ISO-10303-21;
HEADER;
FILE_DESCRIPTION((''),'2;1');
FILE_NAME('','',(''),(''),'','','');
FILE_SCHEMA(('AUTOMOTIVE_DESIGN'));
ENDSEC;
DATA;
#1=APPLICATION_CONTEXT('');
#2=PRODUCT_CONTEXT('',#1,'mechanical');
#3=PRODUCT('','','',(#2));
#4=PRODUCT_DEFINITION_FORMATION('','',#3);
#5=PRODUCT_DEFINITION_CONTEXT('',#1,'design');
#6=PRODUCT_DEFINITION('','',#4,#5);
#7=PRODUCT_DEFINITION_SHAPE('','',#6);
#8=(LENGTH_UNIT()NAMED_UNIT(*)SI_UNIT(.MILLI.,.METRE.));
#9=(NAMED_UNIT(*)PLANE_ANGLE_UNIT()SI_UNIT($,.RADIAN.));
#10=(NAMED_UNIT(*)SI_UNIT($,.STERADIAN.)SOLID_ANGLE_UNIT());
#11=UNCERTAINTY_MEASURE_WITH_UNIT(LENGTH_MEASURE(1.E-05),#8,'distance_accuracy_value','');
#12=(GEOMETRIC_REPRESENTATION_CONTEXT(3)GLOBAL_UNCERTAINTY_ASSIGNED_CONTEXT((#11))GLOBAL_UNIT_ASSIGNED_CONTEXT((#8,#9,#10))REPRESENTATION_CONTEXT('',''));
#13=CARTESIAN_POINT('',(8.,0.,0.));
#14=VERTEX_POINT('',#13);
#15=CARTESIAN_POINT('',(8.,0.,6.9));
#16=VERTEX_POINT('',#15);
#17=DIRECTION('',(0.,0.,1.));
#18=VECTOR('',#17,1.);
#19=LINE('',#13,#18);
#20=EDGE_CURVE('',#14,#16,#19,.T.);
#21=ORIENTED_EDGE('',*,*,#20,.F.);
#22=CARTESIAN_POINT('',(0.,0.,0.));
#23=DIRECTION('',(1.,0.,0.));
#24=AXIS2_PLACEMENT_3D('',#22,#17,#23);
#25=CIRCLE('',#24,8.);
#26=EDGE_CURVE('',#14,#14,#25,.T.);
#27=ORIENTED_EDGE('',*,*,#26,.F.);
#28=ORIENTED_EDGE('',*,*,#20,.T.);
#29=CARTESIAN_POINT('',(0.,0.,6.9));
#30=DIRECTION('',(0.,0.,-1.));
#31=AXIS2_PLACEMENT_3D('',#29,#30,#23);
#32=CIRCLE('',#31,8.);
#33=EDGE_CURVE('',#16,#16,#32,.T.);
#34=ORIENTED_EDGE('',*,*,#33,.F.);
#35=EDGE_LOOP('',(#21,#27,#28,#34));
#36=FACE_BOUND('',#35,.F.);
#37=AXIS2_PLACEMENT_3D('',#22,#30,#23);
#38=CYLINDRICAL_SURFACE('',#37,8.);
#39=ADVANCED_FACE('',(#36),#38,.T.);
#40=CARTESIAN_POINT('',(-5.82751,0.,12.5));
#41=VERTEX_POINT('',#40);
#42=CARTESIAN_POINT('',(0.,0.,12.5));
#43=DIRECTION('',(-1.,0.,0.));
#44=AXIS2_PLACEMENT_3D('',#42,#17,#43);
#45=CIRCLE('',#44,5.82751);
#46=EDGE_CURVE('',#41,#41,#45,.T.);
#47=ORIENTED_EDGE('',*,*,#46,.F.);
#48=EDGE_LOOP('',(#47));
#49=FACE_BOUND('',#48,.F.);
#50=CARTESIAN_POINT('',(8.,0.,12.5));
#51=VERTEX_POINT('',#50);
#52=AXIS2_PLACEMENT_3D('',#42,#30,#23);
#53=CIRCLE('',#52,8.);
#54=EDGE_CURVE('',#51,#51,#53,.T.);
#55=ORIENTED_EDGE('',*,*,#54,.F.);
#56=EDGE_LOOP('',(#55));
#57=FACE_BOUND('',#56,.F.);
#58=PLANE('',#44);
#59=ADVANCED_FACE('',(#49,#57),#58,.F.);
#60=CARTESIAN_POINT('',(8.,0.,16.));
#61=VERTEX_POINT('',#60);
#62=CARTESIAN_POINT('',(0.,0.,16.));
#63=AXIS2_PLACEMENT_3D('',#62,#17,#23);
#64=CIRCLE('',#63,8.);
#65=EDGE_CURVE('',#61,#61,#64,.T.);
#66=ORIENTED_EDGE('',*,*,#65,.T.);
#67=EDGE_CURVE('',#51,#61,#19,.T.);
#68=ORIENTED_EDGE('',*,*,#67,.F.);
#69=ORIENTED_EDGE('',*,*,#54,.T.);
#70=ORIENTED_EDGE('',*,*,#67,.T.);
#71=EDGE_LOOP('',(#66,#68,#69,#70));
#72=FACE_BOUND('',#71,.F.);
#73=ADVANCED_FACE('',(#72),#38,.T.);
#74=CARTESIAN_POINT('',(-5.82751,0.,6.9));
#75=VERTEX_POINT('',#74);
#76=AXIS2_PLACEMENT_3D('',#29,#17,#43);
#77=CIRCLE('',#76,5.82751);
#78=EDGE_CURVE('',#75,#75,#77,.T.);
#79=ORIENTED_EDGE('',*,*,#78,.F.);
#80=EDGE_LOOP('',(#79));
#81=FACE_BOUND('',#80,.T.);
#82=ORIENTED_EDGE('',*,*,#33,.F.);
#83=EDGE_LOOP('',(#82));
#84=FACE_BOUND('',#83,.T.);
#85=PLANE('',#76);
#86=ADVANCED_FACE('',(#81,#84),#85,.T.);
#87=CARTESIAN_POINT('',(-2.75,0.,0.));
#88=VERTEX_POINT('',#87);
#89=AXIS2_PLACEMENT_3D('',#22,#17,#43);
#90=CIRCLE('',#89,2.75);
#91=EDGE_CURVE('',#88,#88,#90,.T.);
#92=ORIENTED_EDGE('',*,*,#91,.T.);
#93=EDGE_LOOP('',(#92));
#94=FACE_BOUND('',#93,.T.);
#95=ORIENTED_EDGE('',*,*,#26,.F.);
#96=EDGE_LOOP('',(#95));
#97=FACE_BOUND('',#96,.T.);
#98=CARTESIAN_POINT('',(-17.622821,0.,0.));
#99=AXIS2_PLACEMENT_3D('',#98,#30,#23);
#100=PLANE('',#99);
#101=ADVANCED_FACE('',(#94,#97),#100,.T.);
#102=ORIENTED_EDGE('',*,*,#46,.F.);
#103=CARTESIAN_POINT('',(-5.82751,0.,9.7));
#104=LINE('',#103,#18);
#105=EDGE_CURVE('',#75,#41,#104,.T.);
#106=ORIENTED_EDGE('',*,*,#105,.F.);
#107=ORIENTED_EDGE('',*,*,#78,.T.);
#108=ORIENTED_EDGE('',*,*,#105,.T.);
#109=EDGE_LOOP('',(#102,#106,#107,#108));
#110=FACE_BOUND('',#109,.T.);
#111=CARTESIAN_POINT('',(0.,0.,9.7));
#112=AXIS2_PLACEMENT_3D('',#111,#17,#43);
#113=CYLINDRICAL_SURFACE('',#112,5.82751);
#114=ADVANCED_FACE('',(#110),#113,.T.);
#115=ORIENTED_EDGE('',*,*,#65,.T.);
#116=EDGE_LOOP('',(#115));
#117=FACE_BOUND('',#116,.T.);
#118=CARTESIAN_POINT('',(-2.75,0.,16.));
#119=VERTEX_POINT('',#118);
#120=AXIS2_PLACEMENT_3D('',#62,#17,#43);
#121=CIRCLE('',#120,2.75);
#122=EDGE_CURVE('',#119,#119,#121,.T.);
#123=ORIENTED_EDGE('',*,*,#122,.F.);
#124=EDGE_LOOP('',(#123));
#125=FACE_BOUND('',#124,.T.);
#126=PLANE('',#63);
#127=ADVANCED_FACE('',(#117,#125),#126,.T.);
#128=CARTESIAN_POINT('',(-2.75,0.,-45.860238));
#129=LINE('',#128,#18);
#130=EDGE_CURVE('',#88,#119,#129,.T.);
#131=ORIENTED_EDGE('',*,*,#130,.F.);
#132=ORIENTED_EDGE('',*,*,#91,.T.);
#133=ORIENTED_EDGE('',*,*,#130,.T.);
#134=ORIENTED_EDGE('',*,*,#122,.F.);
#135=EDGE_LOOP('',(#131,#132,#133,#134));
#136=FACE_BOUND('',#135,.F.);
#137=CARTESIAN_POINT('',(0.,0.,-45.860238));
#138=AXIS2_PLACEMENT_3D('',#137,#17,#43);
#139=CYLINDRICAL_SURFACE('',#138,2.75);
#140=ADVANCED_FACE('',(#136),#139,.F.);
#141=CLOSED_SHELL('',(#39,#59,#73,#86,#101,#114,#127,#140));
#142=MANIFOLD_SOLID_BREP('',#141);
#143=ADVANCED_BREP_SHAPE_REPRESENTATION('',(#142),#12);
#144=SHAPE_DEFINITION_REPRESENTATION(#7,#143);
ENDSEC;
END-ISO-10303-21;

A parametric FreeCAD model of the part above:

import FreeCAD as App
import Part
import Sketcher

V = App.Vector


def edges_at(feature, points):
    """Names of the edges that pass closest to the given points."""
    edges = feature.Shape.Edges
    near = lambda p: min(range(len(edges)), key=lambda i: edges[i].distToShape(Part.Vertex(*p))[0])
    return sorted({f"Edge{near(p) + 1}" for p in points})

doc = App.newDocument("Part")
body = doc.addObject("PartDesign::Body", "Body")

# Sketch on XY plane
sketch1 = doc.addObject("Sketcher::SketchObject", "Sketch")
body.addObject(sketch1)
sketch1.AttachmentSupport = (doc.XY_Plane, [""])
sketch1.MapMode = "FlatFace"
sketch1.addGeometry([
    Part.LineSegment(V(-15, 12, 0), V(-15, -12, 0)),
    Part.LineSegment(V(-15, -12, 0), V(15, -12, 0)),
    Part.LineSegment(V(15, -12, 0), V(15, 12, 0)),
    Part.LineSegment(V(15, 12, 0), V(-15, 12, 0)),
], False)
sketch1.addConstraint([
    Sketcher.Constraint("Coincident", 0, 2, 1, 1),
    Sketcher.Constraint("Coincident", 1, 2, 2, 1),
    Sketcher.Constraint("Coincident", 2, 2, 3, 1),
    Sketcher.Constraint("Coincident", 3, 2, 0, 1),
    Sketcher.Constraint("Vertical", 0),
    Sketcher.Constraint("Horizontal", 1),
    Sketcher.Constraint("Vertical", 2),
    Sketcher.Constraint("Horizontal", 3),
    Sketcher.Constraint("Symmetric", 0, 2, 2, 2, -1, 1),
    Sketcher.Constraint("DistanceX", 1, 1, 1, 2, 30.0),
    Sketcher.Constraint("DistanceY", 0, 2, 0, 1, 24.0),
])
pad1 = doc.addObject("PartDesign::Pad", "Pad")
body.addObject(pad1)
pad1.Profile = sketch1
pad1.Length = 3
pad1.Reversed = True

# Sketch on XY plane
sketch2 = doc.addObject("Sketcher::SketchObject", "Sketch001")
body.addObject(sketch2)
sketch2.AttachmentSupport = (doc.XY_Plane, [""])
sketch2.MapMode = "FlatFace"
sketch2.addGeometry([
    Part.Circle(V(-9, 6.7, 0), V(0, 0, 1), 1.6),
    Part.Circle(V(9, 6.7, 0), V(0, 0, 1), 1.6),
], False)
sketch2.addConstraint([
    Sketcher.Constraint("Equal", 0, 1),
    Sketcher.Constraint("Symmetric", 0, 3, 1, 3, -2),
    Sketcher.Constraint("Diameter", 0, 3.3),
    Sketcher.Constraint("DistanceX", 0, 3, -1, 1, 9.0),
    Sketcher.Constraint("DistanceY", -1, 1, 0, 3, 6.7),
])
doc.recompute()
hole = doc.addObject("PartDesign::Hole", "Hole")
body.addObject(hole)
hole.Profile = sketch2
hole.ThreadType = "None"
hole.Diameter = 3.3
hole.DepthType = "ThroughAll"

# Sketch on XY plane
sketch3 = doc.addObject("Sketcher::SketchObject", "Sketch002")
body.addObject(sketch3)
sketch3.AttachmentSupport = (doc.XY_Plane, [""])
sketch3.MapMode = "FlatFace"
sketch3.addGeometry(Part.Circle(V(0, 0, 0), V(0, 0, 1), 8), False)
sketch3.addConstraint([
    Sketcher.Constraint("Coincident", 0, 3, -1, 1),
    Sketcher.Constraint("Diameter", 0, 16.0),
])
pad2 = doc.addObject("PartDesign::Pad", "Pad001")
body.addObject(pad2)
pad2.Profile = sketch3
pad2.Length = 16

# Sketch on XZ plane
sketch4 = doc.addObject("Sketcher::SketchObject", "Sketch003")
body.addObject(sketch4)
sketch4.AttachmentSupport = (doc.XZ_Plane, [""])
sketch4.MapMode = "FlatFace"
sketch4.addGeometry([
    Part.LineSegment(V(-8, 12.5, 0), V(-8, 6.9, 0)),
    Part.LineSegment(V(-8, 6.9, 0), V(-5.8, 6.9, 0)),
    Part.LineSegment(V(-5.8, 6.9, 0), V(-5.8, 12.5, 0)),
    Part.LineSegment(V(-5.8, 12.5, 0), V(-8, 12.5, 0)),
], False)
sketch4.addConstraint([
    Sketcher.Constraint("Coincident", 0, 2, 1, 1),
    Sketcher.Constraint("Coincident", 1, 2, 2, 1),
    Sketcher.Constraint("Coincident", 2, 2, 3, 1),
    Sketcher.Constraint("Coincident", 3, 2, 0, 1),
    Sketcher.Constraint("Vertical", 0),
    Sketcher.Constraint("Horizontal", 1),
    Sketcher.Constraint("Vertical", 2),
    Sketcher.Constraint("Horizontal", 3),
    Sketcher.Constraint("DistanceX", 1, 1, 1, 2, 2.2),
    Sketcher.Constraint("DistanceY", 0, 2, 0, 1, 5.6),
    Sketcher.Constraint("DistanceY", -1, 1, 0, 2, 6.9),
    Sketcher.Constraint("DistanceX", 0, 2, -1, 1, 8.02751),
])
groove = doc.addObject("PartDesign::Groove", "Groove")
body.addObject(groove)
groove.Profile = sketch4
groove.ReferenceAxis = (sketch4, ["V_Axis"])
groove.Angle = 360

# Sketch on XY plane
sketch5 = doc.addObject("Sketcher::SketchObject", "Sketch004")
body.addObject(sketch5)
sketch5.AttachmentSupport = (doc.XY_Plane, [""])
sketch5.MapMode = "FlatFace"
sketch5.AttachmentOffset = App.Placement(V(0, 0, -3), App.Rotation())
sketch5.addGeometry(Part.Circle(V(0, 0, 0), V(0, 0, 1), 2.8), False)
sketch5.addConstraint([
    Sketcher.Constraint("Coincident", 0, 3, -1, 1),
    Sketcher.Constraint("Diameter", 0, 5.5),
])
doc.recompute()
hole2 = doc.addObject("PartDesign::Hole", "Hole001")
body.addObject(hole2)
hole2.Profile = sketch5
hole2.ThreadType = "None"
hole2.Diameter = 5.5
hole2.DepthType = "ThroughAll"
hole2.Reversed = True
doc.recompute()

fillet = doc.addObject("PartDesign::Fillet", "Fillet")
body.addObject(fillet)
fillet.Base = (hole2, edges_at(hole2, [
    (15, -12, -1.5),
    (15, 12, -1.5),
    (-15, 12, -1.5),
    (-15, -12, -1.5),
]))
fillet.Radius = 5

# Sketch on XZ plane
sketch6 = doc.addObject("Sketcher::SketchObject", "Sketch005")
body.addObject(sketch6)
sketch6.AttachmentSupport = (doc.XZ_Plane, [""])
sketch6.MapMode = "FlatFace"
sketch6.addGeometry([
    Part.LineSegment(V(-18, 0, 0), V(-18, -6, 0)),
    Part.LineSegment(V(-18, -6, 0), V(17, -6, 0)),
    Part.LineSegment(V(17, -6, 0), V(17, 0, 0)),
    Part.LineSegment(V(17, 0, 0), V(-18, 0, 0)),
], False)
sketch6.addConstraint([
    Sketcher.Constraint("Coincident", 0, 2, 1, 1),
    Sketcher.Constraint("Coincident", 1, 2, 2, 1),
    Sketcher.Constraint("Coincident", 2, 2, 3, 1),
    Sketcher.Constraint("Coincident", 3, 2, 0, 1),
    Sketcher.Constraint("Vertical", 0),
    Sketcher.Constraint("Horizontal", 1),
    Sketcher.Constraint("Vertical", 2),
    Sketcher.Constraint("Horizontal", 3),
    Sketcher.Constraint("PointOnObject", 2, 2, -1),
    Sketcher.Constraint("DistanceX", 1, 1, 1, 2, 35.034152),
    Sketcher.Constraint("DistanceY", 0, 2, 0, 1, 6.417783),
    Sketcher.Constraint("DistanceX", 0, 2, -1, 1, 17.622821),
])
pocket1 = doc.addObject("PartDesign::Pocket", "Pocket")
body.addObject(pocket1)
pocket1.Profile = sketch6
pocket1.Type = "ThroughAll"
pocket1.Midplane = True

doc.recompute()
